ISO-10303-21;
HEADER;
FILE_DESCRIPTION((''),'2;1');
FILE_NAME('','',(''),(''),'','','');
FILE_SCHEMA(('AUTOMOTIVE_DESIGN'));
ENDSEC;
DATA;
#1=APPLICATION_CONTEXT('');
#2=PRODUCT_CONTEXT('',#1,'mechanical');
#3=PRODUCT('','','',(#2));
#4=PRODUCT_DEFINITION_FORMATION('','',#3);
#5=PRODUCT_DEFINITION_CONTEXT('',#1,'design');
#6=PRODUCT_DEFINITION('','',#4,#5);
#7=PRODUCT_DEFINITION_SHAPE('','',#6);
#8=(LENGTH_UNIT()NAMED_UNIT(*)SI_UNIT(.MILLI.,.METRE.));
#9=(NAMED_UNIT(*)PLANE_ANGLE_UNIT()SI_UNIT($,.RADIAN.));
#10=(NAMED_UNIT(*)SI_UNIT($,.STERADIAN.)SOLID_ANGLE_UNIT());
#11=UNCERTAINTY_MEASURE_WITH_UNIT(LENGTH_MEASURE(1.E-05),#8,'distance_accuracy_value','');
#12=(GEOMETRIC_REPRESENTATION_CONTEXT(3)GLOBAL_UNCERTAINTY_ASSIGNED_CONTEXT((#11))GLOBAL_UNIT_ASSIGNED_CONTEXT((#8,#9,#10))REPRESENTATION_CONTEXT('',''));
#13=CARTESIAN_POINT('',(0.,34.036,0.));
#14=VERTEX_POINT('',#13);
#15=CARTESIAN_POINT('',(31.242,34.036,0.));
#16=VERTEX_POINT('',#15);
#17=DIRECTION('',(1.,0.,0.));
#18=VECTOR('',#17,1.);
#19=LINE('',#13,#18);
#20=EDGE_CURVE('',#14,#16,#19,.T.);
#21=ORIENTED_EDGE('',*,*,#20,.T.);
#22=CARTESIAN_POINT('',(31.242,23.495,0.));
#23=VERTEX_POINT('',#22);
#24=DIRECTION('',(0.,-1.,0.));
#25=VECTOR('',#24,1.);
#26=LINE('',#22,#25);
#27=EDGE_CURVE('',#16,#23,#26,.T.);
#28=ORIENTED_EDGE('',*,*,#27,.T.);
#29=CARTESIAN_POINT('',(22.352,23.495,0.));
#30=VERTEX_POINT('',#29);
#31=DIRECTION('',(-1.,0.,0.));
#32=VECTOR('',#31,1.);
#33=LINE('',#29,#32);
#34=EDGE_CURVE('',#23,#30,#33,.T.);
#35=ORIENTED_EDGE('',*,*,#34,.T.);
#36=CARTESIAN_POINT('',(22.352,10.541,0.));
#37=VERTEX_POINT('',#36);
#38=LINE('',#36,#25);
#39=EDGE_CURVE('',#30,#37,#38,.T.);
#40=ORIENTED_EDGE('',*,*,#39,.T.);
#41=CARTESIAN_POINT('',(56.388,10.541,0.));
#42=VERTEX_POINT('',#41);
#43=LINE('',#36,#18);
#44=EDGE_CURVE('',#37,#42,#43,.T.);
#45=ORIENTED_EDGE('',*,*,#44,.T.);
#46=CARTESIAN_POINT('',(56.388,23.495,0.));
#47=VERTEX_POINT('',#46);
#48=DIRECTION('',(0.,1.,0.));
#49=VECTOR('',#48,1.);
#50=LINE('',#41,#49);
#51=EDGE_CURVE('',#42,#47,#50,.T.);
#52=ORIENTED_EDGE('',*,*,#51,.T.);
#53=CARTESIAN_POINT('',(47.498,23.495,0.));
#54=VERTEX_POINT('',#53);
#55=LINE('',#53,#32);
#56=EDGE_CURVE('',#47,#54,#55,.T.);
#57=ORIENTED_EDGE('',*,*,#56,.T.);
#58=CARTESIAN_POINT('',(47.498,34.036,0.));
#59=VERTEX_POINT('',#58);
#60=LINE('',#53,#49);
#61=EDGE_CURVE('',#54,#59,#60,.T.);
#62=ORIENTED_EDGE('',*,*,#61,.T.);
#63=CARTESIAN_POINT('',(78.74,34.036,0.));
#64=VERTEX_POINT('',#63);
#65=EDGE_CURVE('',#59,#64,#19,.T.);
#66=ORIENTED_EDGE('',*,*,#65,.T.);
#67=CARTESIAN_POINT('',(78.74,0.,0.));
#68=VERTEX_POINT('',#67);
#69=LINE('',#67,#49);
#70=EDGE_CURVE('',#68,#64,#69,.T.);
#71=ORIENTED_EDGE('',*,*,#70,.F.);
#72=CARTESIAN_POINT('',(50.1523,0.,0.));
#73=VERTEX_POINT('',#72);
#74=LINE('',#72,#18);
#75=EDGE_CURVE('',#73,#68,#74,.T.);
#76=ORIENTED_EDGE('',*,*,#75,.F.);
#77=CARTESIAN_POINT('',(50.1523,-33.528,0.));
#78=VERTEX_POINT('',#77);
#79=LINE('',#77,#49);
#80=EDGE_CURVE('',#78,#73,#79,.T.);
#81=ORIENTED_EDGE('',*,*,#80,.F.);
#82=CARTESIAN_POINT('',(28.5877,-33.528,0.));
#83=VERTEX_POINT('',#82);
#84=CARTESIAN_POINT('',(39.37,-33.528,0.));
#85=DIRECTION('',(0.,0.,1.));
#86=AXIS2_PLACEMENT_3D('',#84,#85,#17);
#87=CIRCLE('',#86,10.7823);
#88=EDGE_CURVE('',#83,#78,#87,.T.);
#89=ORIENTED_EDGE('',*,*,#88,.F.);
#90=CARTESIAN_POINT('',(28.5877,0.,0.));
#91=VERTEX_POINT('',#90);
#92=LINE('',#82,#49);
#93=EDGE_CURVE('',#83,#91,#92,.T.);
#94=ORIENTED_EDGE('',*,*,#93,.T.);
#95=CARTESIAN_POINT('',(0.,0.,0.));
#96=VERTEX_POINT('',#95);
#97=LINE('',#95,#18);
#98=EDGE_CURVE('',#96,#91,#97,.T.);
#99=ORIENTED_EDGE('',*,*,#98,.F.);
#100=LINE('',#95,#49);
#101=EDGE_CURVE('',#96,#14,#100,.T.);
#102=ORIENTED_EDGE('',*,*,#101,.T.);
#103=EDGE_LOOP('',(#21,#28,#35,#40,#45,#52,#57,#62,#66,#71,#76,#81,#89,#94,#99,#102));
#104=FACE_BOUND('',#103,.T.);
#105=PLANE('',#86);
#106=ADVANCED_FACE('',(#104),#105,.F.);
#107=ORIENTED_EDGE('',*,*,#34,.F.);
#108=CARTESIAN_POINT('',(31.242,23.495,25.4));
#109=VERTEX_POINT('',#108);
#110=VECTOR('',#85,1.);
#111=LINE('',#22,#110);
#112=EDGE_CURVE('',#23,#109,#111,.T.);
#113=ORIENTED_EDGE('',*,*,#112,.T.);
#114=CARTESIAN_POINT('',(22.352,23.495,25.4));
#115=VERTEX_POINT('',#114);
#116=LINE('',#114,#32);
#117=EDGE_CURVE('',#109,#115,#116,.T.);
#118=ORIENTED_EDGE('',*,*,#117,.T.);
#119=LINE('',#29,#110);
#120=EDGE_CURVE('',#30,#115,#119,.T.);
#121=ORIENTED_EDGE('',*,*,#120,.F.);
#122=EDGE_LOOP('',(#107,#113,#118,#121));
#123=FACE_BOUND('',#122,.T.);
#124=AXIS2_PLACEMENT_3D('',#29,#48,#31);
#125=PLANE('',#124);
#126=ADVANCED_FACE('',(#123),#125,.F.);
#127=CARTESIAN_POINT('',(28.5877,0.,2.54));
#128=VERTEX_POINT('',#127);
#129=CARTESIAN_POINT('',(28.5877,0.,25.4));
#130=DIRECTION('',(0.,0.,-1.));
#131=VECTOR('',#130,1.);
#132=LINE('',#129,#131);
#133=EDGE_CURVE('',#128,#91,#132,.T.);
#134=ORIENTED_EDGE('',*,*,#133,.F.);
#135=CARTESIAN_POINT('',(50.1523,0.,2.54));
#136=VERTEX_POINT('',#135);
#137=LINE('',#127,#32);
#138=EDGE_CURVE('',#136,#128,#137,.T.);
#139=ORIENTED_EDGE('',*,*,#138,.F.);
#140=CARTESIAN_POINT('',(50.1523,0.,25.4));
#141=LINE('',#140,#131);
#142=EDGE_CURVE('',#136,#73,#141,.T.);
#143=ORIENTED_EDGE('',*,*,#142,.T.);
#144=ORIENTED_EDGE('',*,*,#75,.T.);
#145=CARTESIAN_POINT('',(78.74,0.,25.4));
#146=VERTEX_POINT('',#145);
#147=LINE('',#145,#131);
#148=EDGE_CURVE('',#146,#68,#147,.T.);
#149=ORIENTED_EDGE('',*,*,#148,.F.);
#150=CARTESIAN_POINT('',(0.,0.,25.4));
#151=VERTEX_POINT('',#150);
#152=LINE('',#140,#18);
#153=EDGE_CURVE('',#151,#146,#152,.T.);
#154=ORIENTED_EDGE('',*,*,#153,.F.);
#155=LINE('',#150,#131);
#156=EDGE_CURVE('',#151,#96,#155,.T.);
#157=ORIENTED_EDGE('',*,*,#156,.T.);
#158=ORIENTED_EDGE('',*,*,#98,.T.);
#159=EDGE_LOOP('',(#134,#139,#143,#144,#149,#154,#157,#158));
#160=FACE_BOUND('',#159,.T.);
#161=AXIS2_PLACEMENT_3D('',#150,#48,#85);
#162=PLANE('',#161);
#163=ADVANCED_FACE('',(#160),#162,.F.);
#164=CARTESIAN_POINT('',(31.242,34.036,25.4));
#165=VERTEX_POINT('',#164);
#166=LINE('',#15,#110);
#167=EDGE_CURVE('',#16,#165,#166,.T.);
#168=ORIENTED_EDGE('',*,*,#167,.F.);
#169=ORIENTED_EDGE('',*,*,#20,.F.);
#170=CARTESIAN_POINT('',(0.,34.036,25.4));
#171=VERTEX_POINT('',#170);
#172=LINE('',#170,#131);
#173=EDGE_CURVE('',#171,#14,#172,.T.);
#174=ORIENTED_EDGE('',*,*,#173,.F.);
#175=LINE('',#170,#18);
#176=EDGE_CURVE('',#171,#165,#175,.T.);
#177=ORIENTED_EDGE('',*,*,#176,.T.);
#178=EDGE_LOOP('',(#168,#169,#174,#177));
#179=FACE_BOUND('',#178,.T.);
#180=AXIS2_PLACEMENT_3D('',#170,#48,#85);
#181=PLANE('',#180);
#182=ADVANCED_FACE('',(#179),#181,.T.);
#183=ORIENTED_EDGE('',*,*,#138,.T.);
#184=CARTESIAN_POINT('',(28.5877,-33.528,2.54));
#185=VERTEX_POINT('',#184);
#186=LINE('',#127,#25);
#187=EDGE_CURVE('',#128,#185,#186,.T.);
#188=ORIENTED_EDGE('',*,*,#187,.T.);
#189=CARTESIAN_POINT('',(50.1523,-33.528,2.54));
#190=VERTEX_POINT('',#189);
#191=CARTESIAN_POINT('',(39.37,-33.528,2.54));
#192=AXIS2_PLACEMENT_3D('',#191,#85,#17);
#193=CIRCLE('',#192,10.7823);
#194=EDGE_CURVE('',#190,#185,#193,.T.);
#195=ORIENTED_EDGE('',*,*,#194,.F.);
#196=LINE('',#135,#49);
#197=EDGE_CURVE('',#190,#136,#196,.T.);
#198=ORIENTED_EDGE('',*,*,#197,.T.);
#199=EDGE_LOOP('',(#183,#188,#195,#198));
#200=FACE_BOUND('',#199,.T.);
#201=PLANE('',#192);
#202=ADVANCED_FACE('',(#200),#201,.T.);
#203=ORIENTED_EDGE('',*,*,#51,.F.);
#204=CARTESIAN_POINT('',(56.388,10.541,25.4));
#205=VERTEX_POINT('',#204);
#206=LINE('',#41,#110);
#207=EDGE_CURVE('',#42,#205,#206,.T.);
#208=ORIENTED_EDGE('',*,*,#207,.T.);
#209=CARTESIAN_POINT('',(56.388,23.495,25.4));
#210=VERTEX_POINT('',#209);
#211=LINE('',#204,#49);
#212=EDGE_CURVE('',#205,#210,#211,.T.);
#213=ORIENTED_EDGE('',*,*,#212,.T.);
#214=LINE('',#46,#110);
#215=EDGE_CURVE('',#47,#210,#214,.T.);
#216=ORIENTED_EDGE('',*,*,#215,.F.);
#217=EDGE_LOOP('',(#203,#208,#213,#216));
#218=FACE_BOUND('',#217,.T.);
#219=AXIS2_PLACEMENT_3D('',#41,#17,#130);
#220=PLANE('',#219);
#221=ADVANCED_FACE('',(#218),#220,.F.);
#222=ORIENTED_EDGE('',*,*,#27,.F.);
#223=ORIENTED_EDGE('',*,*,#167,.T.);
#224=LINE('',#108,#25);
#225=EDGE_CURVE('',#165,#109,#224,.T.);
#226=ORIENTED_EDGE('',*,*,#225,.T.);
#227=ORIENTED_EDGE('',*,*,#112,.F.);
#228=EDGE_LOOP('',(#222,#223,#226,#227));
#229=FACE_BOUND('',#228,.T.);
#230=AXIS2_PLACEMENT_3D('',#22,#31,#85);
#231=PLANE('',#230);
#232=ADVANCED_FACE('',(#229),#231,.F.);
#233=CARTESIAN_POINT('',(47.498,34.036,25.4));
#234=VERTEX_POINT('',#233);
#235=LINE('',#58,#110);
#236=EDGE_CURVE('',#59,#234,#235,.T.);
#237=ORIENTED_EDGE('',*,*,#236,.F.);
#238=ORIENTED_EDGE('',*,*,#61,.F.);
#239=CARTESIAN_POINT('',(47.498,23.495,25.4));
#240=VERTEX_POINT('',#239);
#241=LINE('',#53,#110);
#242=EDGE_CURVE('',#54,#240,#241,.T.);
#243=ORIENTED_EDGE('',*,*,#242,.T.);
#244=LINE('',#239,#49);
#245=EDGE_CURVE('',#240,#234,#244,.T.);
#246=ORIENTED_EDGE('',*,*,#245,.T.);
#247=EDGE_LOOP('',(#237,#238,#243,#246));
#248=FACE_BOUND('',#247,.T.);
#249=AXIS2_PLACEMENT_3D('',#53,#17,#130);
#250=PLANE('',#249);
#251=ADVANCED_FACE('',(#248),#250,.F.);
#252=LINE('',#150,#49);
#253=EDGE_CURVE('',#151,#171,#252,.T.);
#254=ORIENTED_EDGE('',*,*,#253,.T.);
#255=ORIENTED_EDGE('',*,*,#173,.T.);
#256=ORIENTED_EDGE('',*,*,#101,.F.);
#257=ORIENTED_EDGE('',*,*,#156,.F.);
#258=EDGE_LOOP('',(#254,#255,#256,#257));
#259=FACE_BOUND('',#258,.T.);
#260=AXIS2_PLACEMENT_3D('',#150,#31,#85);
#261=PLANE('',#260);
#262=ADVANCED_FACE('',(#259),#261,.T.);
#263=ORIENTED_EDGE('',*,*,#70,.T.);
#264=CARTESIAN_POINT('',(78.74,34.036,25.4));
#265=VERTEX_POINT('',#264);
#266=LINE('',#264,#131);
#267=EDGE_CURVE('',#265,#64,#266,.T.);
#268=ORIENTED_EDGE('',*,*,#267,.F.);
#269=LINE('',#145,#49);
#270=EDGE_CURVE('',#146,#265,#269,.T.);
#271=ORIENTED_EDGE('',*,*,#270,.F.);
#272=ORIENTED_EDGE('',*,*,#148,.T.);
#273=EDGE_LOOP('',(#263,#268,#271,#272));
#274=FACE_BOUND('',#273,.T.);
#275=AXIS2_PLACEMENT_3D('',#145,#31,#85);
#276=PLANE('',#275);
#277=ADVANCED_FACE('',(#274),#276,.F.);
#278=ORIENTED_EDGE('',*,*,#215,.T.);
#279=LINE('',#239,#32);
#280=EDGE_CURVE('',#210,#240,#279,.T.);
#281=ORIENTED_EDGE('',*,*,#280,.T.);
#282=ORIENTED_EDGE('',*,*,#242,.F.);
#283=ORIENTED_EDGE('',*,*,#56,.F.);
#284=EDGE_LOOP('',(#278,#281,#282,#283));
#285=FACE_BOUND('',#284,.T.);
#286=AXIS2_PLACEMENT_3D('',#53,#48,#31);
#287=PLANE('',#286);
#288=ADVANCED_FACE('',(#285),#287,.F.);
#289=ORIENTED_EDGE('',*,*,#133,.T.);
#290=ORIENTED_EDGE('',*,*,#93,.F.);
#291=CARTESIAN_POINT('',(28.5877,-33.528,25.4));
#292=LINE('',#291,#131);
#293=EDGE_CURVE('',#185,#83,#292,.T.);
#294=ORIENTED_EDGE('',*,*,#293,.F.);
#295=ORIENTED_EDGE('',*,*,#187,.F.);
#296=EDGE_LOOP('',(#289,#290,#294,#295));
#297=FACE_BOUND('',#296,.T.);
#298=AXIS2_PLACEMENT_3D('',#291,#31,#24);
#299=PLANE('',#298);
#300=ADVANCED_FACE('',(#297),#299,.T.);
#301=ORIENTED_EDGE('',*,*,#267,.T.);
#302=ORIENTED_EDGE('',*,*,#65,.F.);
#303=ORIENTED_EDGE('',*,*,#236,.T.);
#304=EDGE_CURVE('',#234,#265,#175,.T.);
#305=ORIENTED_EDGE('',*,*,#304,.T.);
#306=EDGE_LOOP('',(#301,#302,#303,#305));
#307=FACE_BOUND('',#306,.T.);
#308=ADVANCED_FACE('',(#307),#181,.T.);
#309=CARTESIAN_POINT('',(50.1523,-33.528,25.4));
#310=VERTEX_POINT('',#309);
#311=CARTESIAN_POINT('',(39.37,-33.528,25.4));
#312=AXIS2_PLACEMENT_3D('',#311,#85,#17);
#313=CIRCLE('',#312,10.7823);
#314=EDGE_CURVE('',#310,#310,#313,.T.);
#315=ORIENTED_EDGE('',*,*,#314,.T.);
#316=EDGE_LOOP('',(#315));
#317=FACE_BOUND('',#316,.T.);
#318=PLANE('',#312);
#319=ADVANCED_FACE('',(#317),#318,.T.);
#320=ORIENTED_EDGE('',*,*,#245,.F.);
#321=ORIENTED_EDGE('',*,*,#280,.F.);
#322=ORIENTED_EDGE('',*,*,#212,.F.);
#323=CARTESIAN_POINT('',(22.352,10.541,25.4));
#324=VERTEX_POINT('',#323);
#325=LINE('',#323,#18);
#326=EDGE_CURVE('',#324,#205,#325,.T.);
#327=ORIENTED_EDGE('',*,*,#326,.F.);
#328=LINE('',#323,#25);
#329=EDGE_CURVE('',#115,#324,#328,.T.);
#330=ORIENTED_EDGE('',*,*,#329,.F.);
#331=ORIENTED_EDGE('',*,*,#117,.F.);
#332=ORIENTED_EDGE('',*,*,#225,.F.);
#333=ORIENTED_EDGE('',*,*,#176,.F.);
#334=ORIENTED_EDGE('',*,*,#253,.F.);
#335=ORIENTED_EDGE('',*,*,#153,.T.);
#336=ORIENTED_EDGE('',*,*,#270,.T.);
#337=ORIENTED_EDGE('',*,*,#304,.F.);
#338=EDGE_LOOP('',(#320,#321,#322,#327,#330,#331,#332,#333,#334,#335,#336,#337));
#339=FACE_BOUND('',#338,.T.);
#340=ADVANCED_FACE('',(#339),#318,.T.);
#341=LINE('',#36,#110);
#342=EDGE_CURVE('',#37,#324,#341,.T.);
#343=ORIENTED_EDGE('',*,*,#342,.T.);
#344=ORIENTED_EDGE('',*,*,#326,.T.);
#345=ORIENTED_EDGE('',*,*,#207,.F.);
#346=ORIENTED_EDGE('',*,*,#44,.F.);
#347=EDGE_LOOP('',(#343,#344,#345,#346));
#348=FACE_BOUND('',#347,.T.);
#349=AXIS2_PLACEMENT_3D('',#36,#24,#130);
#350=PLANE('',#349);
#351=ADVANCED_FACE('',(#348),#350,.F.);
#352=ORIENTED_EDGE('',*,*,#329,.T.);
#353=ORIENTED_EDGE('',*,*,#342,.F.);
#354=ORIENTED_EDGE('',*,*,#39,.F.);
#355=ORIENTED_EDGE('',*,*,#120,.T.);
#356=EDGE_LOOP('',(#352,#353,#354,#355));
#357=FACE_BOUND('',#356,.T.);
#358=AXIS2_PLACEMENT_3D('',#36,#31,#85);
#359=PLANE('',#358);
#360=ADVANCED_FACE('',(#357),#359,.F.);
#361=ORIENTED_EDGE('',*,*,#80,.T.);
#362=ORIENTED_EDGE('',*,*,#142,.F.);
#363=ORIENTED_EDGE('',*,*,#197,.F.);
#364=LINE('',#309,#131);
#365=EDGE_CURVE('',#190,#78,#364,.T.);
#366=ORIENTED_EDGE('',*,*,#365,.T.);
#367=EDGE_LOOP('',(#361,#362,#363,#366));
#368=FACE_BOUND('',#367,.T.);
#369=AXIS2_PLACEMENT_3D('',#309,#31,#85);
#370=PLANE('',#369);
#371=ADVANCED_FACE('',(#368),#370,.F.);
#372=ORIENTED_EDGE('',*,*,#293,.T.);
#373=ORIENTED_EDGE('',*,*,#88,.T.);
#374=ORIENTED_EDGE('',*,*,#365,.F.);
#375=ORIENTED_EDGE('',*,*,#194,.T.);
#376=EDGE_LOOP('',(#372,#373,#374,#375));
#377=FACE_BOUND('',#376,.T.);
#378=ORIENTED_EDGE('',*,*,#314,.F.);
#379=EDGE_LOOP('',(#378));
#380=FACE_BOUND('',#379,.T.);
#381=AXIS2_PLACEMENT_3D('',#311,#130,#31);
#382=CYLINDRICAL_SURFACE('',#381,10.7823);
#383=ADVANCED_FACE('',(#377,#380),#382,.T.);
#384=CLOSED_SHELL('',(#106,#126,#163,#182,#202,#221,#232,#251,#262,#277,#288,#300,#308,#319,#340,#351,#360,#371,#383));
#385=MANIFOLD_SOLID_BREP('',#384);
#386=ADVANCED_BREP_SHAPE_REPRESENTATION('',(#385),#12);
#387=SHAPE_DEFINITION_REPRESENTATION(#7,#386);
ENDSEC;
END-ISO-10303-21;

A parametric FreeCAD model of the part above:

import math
import FreeCAD as App
import Part
import Sketcher

V = App.Vector
Q = App.Units.Quantity


def add_polygon(sketch, points):
    """Adds a closed chain of lines whose ends are joined by coincident constraints."""
    first, n = sketch.GeometryCount, len(points)
    for a, b in zip(points, points[1:] + points[:1]):
        sketch.addGeometry(Part.LineSegment(App.Vector(*a, 0), App.Vector(*b, 0)), False)
    for i in range(n):
        sketch.addConstraint(Sketcher.Constraint("Coincident", first + i, 2, first + (i + 1) % n, 1))

doc = App.newDocument("Part")
params = doc.addObject("Spreadsheet::Sheet", "Params")
for row, (alias, value) in enumerate([
    ("sketch1_width", "3.1 in"),
    ("sketch1_height", "1.32 in"),
    ("sketch1_height2", "1.34 in"),
    ("pad1_length", "1 in"),
    ("sketch2_width", "0.35 in"),
    ("sketch2_width2", "0.64 in"),
    ("sketch2_height", "0.51 in"),
    ("sketch2_height2", "0.415 in"),
    ("sketch3_height", "1.32 in"),
    ("pocket2_length", "0.9 in"),
    ("sketch4_diameter", "0.849 in"),
    ("pad2_length", "0.9 in"),
], start=1):
    params.set(f"A{row}", alias)
    params.set(f"B{row}", "=" + value)
    params.setAlias(f"B{row}", alias)

body = doc.addObject("PartDesign::Body", "Body")

# Sketch on XY plane
sketch1 = body.newObject("Sketcher::SketchObject", "Sketch")
sketch1.AttachmentSupport = (doc.getObject("XY_Plane"), [""])
sketch1.MapMode = "FlatFace"
sketch1.addGeometry(Part.LineSegment(V(0, 0, 0), V(28.5877, 0, 0)), False)
sketch1.addGeometry(Part.LineSegment(V(28.5877, 0, 0), V(28.5877, -33.528, 0)), False)
sketch1.addGeometry(Part.ArcOfCircle(Part.Circle(V(39.37, -33.528, 0), V(0, 0, 1), 10.7823), math.radians(180), math.radians(360)), False)
sketch1.addGeometry(Part.LineSegment(V(50.1523, -33.528, 0), V(50.1523, 0, 0)), False)
sketch1.addGeometry(Part.LineSegment(V(50.1523, 0, 0), V(78.74, 0, 0)), False)
sketch1.addGeometry(Part.LineSegment(V(78.74, 0, 0), V(78.74, 34.036, 0)), False)
sketch1.addGeometry(Part.LineSegment(V(78.74, 34.036, 0), V(0, 34.036, 0)), False)
sketch1.addGeometry(Part.LineSegment(V(0, 34.036, 0), V(0, 0, 0)), False)
sketch1.addConstraint(Sketcher.Constraint("Coincident", 0, 2, 1, 1))
sketch1.addConstraint(Sketcher.Constraint("Tangent", 1, 2, 2, 1))
sketch1.addConstraint(Sketcher.Constraint("Tangent", 2, 2, 3, 1))
sketch1.addConstraint(Sketcher.Constraint("Coincident", 3, 2, 4, 1))
sketch1.addConstraint(Sketcher.Constraint("Coincident", 4, 2, 5, 1))
sketch1.addConstraint(Sketcher.Constraint("Coincident", 5, 2, 6, 1))
sketch1.addConstraint(Sketcher.Constraint("Coincident", 6, 2, 7, 1))
sketch1.addConstraint(Sketcher.Constraint("Coincident", 7, 2, 0, 1))
sketch1.addConstraint(Sketcher.Constraint("Horizontal", 0))
sketch1.addConstraint(Sketcher.Constraint("Vertical", 1))
sketch1.addConstraint(Sketcher.Constraint("Vertical", 3))
sketch1.addConstraint(Sketcher.Constraint("Horizontal", 4))
sketch1.addConstraint(Sketcher.Constraint("Vertical", 5))
sketch1.addConstraint(Sketcher.Constraint("Horizontal", 6))
sketch1.addConstraint(Sketcher.Constraint("Vertical", 7))
sketch1.addConstraint(Sketcher.Constraint("Coincident", 7, 2, -1, 1))
sketch1.addConstraint(Sketcher.Constraint("PointOnObject", 3, 2, -1))
sketch1.addConstraint(Sketcher.Constraint("Equal", 0, 4))
sketch1.addConstraint(Sketcher.Constraint("DistanceX", 6, 2, 6, 1, Q("3.1 in")))
sketch1.addConstraint(Sketcher.Constraint("DistanceY", 1, 2, 1, 1, Q("1.32 in")))
sketch1.addConstraint(Sketcher.Constraint("DistanceY", 5, 1, 5, 2, Q("1.34 in")))
sketch1.addConstraint(Sketcher.Constraint("Radius", 2, Q("0.4245 in")))
sketch1.setExpression("Constraints[18]", "Params.sketch1_width")
sketch1.setExpression("Constraints[19]", "Params.sketch1_height")
sketch1.setExpression("Constraints[20]", "Params.sketch1_height2")
pad1 = body.newObject("PartDesign::Pad", "Pad")
pad1.Profile = sketch1
pad1.setExpression("Length", "Params.pad1_length")

# Sketch on XY plane
sketch2 = body.newObject("Sketcher::SketchObject", "Sketch001")
sketch2.AttachmentSupport = (doc.getObject("XY_Plane"), [""])
sketch2.MapMode = "FlatFace"
sketch2.AttachmentOffset = App.Placement(V(0, 0, 1 * 25.4), App.Rotation())
add_polygon(sketch2, [(56.388, 23.495), (47.498, 23.495), (47.498, 34.036), (31.242, 34.036), (31.242, 23.495), (22.352, 23.495), (22.352, 10.541), (56.388, 10.541)])  # lines 0-7
sketch2.addConstraint(Sketcher.Constraint("Horizontal", 0))
sketch2.addConstraint(Sketcher.Constraint("Vertical", 1))
sketch2.addConstraint(Sketcher.Constraint("Horizontal", 2))
sketch2.addConstraint(Sketcher.Constraint("Vertical", 3))
sketch2.addConstraint(Sketcher.Constraint("Horizontal", 4))
sketch2.addConstraint(Sketcher.Constraint("Vertical", 5))
sketch2.addConstraint(Sketcher.Constraint("Horizontal", 6))
sketch2.addConstraint(Sketcher.Constraint("Vertical", 7))
sketch2.addConstraint(Sketcher.Constraint("Horizontal", 0, 2, 3, 2))
sketch2.addConstraint(Sketcher.Constraint("Equal", 0, 4))
sketch2.addConstraint(Sketcher.Constraint("DistanceX", 0, 2, 0, 1, Q("0.35 in")))
sketch2.addConstraint(Sketcher.Constraint("DistanceX", 2, 2, 2, 1, Q("0.64 in")))
sketch2.addConstraint(Sketcher.Constraint("DistanceY", 5, 2, 5, 1, Q("0.51 in")))
sketch2.addConstraint(Sketcher.Constraint("DistanceY", 1, 1, 1, 2, Q("0.415 in")))
sketch2.addConstraint(Sketcher.Constraint("DistanceX", -1, 1, 0, 2, Q("1.87 in")))
sketch2.addConstraint(Sketcher.Constraint("DistanceY", -1, 1, 1, 2, Q("1.34 in")))
sketch2.setExpression("Constraints[18]", "Params.sketch2_width")
sketch2.setExpression("Constraints[19]", "Params.sketch2_width2")
sketch2.setExpression("Constraints[20]", "Params.sketch2_height")
sketch2.setExpression("Constraints[21]", "Params.sketch2_height2")
pocket1 = body.newObject("PartDesign::Pocket", "Pocket")
pocket1.Profile = sketch2
pocket1.Type = "ThroughAll"

# Sketch on XY plane
sketch3 = body.newObject("Sketcher::SketchObject", "Sketch002")
sketch3.AttachmentSupport = (doc.getObject("XY_Plane"), [""])
sketch3.MapMode = "FlatFace"
sketch3.AttachmentOffset = App.Placement(V(0, 0, 0.1 * 25.4), App.Rotation())
sketch3.addGeometry(Part.LineSegment(V(50.1523, 0, 0), V(28.5877, 0, 0)), False)
sketch3.addGeometry(Part.LineSegment(V(28.5877, 0, 0), V(28.5877, -33.528, 0)), False)
sketch3.addGeometry(Part.ArcOfCircle(Part.Circle(V(39.37, -33.528, 0), V(0, 0, 1), 10.7823), math.radians(180), math.radians(360)), False)
sketch3.addGeometry(Part.LineSegment(V(50.1523, -33.528, 0), V(50.1523, 0, 0)), False)
sketch3.addConstraint(Sketcher.Constraint("Coincident", 0, 2, 1, 1))
sketch3.addConstraint(Sketcher.Constraint("Tangent", 1, 2, 2, 1))
sketch3.addConstraint(Sketcher.Constraint("Tangent", 2, 2, 3, 1))
sketch3.addConstraint(Sketcher.Constraint("Coincident", 3, 2, 0, 1))
sketch3.addConstraint(Sketcher.Constraint("Horizontal", 0))
sketch3.addConstraint(Sketcher.Constraint("Vertical", 1))
sketch3.addConstraint(Sketcher.Constraint("Vertical", 3))
sketch3.addConstraint(Sketcher.Constraint("PointOnObject", 0, 2, -1))
sketch3.addConstraint(Sketcher.Constraint("DistanceY", 1, 2, 1, 1, Q("1.32 in")))
sketch3.addConstraint(Sketcher.Constraint("Radius", 2, Q("0.4245 in")))
sketch3.addConstraint(Sketcher.Constraint("DistanceX", -1, 1, 2, 3, Q("1.55 in")))
sketch3.setExpression("Constraints[8]", "Params.sketch3_height")
pocket2 = body.newObject("PartDesign::Pocket", "Pocket001")
pocket2.Profile = sketch3
pocket2.setExpression("Length", "Params.pocket2_length")
pocket2.Reversed = True

# Sketch on XY plane
sketch4 = body.newObject("Sketcher::SketchObject", "Sketch003")
sketch4.AttachmentSupport = (doc.getObject("XY_Plane"), [""])
sketch4.MapMode = "FlatFace"
sketch4.AttachmentOffset = App.Placement(V(0, 0, 0.1 * 25.4), App.Rotation())
sketch4.addGeometry(Part.Circle(V(39.37, -33.528, 0), V(0, 0, 1), 10.7823), False)
sketch4.addConstraint(Sketcher.Constraint("Diameter", 0, Q("0.849 in")))
sketch4.addConstraint(Sketcher.Constraint("DistanceX", -1, 1, 0, 3, Q("1.55 in")))
sketch4.addConstraint(Sketcher.Constraint("DistanceY", 0, 3, -1, 1, Q("1.32 in")))
sketch4.setExpression("Constraints[0]", "Params.sketch4_diameter")
pad2 = body.newObject("PartDesign::Pad", "Pad001")
pad2.Profile = sketch4
pad2.setExpression("Length", "Params.pad2_length")

doc.recompute()
